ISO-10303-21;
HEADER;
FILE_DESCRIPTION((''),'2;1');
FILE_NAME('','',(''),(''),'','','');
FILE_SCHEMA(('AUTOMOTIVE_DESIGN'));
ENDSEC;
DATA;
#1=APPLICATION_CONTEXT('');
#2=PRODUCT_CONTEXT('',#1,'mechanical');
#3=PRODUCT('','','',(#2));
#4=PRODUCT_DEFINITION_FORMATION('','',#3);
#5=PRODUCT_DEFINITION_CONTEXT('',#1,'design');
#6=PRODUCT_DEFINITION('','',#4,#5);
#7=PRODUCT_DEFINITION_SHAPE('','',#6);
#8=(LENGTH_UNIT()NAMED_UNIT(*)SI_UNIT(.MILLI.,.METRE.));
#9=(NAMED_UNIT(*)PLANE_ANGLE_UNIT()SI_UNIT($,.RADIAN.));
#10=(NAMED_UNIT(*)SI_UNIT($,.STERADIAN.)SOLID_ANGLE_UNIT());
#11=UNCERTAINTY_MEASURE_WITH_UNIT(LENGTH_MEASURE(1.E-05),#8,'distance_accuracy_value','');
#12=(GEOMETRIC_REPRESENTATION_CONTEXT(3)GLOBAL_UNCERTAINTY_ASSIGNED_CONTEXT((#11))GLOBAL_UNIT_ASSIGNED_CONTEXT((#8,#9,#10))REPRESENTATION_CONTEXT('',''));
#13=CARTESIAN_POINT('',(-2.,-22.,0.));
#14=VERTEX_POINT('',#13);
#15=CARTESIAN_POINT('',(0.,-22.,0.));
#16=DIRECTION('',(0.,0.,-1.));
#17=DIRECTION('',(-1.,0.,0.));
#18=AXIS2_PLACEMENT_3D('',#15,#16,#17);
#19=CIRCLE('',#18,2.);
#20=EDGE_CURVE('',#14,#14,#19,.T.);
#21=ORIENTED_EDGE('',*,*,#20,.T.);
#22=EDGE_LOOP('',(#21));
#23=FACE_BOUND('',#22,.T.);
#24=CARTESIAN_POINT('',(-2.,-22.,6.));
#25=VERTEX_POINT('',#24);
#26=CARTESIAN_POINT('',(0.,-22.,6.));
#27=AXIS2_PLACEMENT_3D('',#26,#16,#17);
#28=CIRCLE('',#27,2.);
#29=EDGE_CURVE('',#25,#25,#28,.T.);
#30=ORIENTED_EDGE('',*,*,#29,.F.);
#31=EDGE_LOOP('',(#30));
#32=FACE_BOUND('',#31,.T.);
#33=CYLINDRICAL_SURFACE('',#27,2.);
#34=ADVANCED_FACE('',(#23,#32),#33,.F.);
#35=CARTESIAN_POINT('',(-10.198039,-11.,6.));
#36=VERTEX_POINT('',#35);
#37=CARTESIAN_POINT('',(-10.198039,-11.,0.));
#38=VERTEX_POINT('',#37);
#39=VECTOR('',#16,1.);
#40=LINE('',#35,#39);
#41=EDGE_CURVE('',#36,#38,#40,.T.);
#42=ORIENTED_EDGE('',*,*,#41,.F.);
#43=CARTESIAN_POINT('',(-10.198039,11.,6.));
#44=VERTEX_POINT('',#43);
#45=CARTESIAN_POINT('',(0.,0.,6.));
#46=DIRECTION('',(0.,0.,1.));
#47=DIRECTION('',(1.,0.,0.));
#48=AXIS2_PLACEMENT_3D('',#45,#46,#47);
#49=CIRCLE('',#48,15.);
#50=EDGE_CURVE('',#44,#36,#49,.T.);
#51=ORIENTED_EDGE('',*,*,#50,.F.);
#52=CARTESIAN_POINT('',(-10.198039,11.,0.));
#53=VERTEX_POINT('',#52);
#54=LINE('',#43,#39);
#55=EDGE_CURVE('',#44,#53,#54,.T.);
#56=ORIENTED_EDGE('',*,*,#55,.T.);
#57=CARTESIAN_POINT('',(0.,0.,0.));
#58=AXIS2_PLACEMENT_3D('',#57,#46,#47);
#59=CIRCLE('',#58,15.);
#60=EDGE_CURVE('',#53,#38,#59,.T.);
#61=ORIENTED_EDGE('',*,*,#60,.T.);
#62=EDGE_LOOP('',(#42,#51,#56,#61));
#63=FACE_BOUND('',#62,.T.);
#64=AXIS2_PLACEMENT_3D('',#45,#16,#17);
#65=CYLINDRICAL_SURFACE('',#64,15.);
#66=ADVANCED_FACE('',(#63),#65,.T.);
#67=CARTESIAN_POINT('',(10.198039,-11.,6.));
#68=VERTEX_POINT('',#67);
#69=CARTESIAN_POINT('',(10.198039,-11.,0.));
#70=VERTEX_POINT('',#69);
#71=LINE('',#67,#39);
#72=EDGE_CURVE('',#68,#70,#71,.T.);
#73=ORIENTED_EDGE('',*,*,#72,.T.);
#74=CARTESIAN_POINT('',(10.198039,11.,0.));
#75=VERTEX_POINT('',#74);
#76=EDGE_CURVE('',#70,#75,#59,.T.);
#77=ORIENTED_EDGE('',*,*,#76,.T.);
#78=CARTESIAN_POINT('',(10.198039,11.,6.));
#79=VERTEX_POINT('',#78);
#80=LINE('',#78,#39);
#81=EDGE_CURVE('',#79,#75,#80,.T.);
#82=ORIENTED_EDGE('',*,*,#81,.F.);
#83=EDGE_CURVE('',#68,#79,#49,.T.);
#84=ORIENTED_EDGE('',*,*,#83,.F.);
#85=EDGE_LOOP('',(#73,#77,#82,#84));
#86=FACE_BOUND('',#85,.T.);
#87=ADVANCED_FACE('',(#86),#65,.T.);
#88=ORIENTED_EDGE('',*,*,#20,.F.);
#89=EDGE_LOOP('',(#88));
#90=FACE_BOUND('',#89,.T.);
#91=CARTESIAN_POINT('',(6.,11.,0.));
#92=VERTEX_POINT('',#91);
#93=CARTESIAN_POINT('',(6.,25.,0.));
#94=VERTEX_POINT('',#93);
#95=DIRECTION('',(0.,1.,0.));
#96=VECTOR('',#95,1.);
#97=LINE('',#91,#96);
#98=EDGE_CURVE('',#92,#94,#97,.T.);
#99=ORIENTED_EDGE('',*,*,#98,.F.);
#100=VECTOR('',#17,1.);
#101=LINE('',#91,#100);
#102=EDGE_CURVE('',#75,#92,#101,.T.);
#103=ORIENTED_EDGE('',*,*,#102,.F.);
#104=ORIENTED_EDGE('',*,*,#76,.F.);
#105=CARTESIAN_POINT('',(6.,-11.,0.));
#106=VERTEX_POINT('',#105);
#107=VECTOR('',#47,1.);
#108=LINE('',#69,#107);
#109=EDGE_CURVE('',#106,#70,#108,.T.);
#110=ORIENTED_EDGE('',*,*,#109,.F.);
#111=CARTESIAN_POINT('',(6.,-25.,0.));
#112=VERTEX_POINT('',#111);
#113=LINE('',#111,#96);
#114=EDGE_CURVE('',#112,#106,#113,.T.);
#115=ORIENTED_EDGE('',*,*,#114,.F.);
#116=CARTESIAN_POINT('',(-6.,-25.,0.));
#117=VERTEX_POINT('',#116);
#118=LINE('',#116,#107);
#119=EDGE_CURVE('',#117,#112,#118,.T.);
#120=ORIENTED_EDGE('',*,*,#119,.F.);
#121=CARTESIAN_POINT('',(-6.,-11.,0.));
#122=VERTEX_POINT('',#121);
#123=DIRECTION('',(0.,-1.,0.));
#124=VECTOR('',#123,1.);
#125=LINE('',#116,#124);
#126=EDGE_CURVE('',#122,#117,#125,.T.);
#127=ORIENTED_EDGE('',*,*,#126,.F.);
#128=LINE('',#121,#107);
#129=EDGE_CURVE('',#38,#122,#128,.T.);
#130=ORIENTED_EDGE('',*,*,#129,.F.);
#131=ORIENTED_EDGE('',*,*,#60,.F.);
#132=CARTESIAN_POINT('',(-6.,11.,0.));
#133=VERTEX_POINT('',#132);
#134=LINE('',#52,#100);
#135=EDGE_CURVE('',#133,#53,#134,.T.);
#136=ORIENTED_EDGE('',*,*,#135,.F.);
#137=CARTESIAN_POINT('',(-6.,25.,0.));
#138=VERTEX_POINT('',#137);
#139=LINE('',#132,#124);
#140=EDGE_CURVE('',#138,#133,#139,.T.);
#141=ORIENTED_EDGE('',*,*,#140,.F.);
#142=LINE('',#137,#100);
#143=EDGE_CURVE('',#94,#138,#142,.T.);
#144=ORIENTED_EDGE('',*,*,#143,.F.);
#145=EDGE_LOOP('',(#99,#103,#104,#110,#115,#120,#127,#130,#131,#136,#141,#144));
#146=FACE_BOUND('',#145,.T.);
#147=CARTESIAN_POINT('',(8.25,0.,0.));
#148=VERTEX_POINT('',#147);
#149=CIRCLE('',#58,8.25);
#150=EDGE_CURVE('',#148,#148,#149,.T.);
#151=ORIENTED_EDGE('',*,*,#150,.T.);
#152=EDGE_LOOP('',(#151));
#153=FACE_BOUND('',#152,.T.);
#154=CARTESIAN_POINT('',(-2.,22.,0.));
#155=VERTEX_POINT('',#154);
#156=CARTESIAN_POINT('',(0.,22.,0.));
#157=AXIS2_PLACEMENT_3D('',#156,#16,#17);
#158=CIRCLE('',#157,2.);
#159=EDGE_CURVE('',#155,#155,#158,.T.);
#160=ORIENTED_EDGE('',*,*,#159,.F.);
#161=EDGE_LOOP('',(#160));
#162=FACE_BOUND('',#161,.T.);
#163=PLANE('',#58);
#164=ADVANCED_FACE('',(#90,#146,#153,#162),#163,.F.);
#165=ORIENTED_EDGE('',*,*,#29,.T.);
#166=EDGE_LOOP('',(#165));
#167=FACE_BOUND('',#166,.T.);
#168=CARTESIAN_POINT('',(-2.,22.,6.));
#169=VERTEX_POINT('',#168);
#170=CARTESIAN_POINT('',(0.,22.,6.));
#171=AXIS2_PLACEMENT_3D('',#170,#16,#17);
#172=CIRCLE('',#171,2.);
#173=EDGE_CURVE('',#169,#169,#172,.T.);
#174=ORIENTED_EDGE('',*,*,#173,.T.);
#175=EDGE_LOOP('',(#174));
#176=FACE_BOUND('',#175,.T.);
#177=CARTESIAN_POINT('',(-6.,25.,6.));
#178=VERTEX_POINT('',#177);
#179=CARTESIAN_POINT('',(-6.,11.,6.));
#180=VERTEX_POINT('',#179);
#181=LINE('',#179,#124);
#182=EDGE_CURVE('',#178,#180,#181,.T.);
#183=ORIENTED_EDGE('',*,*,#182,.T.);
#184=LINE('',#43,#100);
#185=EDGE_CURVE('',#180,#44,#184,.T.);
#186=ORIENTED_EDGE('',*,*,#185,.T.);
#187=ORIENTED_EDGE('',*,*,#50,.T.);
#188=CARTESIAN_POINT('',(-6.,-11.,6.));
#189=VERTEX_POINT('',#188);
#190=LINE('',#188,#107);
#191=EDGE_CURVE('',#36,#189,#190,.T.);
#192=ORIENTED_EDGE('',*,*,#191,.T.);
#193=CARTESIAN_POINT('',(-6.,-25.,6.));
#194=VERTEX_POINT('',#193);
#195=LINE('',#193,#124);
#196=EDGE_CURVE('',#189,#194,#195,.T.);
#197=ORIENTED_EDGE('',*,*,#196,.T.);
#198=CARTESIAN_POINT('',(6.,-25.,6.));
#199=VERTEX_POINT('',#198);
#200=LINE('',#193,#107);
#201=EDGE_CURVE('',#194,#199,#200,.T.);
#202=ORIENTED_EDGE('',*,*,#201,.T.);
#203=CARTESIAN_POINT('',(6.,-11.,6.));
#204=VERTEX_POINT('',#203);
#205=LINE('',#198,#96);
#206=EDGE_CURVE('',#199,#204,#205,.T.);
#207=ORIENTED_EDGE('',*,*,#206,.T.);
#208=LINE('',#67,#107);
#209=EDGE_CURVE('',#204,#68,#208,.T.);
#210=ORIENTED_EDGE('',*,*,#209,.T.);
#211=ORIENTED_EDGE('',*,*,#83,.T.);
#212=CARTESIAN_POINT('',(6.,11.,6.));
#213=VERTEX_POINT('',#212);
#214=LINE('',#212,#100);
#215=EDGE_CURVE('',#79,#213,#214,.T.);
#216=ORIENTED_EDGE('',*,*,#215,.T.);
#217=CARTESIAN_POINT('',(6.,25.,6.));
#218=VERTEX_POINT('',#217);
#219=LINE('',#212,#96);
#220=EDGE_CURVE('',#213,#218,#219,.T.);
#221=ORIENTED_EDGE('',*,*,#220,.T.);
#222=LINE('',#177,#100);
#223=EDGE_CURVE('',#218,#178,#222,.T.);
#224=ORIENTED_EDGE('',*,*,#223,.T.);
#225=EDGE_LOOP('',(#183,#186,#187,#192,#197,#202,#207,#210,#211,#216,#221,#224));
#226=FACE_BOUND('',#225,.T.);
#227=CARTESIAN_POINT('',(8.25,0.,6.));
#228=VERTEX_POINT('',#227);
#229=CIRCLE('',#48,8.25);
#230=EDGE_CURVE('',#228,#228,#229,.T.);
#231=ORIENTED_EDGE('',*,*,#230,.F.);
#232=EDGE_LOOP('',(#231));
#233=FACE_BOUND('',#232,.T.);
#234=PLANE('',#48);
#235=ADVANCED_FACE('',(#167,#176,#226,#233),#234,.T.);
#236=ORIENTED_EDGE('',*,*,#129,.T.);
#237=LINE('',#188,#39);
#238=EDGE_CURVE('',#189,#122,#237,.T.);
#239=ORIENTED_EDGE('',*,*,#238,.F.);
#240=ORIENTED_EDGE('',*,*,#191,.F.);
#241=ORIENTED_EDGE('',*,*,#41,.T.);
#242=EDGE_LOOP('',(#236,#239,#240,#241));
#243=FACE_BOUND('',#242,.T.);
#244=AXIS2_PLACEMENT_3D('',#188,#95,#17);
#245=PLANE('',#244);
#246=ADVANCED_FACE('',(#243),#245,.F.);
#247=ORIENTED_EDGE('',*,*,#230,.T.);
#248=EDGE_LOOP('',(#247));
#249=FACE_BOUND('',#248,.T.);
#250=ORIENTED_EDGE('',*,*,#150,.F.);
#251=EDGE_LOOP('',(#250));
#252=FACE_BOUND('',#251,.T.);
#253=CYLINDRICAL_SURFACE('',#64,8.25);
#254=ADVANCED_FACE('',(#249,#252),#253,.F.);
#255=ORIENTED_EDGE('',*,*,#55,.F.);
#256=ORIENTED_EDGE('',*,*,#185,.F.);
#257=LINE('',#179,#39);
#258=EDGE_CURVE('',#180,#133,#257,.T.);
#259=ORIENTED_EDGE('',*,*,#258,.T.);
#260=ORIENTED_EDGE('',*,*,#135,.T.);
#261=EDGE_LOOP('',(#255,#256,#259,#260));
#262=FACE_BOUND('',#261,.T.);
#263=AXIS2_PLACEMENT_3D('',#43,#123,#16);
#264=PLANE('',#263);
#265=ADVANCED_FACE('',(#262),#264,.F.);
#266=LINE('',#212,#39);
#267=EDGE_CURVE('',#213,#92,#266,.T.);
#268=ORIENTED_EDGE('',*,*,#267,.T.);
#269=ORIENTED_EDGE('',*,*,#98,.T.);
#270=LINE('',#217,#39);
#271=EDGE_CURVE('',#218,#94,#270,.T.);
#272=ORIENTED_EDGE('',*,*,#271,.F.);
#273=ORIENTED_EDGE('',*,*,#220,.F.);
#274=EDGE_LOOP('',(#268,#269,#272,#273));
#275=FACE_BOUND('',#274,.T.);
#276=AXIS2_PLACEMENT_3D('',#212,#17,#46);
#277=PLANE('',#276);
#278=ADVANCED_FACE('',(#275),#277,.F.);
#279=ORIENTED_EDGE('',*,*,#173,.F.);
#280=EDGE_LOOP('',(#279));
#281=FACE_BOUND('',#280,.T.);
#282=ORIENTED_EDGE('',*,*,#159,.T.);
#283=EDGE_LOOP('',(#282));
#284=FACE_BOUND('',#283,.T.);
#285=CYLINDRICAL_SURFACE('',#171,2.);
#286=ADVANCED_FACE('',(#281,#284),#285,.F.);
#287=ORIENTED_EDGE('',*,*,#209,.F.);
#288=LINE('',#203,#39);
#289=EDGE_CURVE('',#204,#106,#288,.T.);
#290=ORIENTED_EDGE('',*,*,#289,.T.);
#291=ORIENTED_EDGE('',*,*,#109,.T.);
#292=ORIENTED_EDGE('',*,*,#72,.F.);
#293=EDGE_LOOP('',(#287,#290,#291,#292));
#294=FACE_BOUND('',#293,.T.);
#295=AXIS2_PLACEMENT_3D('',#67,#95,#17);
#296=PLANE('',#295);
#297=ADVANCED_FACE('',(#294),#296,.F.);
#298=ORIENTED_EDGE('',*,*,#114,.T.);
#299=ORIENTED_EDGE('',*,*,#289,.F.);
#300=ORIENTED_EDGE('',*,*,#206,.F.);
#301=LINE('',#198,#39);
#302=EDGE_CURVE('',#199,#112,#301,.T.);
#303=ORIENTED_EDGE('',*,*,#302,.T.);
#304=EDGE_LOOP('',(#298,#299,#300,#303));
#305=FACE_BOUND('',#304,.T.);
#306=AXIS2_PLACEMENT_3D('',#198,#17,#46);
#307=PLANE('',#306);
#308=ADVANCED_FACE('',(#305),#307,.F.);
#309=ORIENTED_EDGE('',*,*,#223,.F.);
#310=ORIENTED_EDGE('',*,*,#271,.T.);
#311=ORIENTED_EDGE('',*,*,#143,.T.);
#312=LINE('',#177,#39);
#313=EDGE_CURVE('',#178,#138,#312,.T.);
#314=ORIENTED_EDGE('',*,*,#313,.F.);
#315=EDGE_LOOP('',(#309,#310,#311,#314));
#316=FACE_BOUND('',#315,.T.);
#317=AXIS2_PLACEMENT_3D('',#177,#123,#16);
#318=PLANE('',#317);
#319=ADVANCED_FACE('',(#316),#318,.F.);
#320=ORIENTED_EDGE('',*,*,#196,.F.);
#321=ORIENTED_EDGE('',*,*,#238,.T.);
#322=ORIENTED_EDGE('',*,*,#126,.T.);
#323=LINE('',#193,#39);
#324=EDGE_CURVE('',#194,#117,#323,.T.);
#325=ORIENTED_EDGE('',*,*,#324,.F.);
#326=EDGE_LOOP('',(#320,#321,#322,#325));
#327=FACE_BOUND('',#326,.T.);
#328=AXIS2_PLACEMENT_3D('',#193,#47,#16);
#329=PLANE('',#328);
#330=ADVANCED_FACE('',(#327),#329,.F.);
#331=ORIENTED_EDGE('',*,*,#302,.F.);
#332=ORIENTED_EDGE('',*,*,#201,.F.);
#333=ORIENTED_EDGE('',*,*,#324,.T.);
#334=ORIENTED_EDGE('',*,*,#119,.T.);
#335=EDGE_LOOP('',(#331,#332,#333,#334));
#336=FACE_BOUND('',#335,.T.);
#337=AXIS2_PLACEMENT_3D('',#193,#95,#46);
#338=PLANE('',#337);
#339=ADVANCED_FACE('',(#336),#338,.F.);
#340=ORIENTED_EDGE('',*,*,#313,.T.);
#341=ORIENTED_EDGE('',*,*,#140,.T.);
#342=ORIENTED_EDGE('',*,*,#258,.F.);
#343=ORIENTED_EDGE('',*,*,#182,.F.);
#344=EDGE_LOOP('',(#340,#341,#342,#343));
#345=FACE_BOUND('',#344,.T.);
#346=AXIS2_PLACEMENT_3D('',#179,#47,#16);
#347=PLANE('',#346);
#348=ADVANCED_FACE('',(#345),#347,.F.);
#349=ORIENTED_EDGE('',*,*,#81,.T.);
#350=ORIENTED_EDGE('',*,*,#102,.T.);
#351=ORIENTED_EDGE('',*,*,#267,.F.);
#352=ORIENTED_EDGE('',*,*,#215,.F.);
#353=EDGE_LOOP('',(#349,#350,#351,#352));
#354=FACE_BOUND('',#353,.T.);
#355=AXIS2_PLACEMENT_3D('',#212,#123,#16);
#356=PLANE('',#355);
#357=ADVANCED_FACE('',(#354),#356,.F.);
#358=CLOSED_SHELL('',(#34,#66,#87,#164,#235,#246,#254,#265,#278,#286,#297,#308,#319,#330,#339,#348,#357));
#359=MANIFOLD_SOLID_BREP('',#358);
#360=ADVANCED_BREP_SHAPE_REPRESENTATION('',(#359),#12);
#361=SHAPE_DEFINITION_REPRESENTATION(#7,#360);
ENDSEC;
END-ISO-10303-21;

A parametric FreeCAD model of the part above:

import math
import FreeCAD as App
import Part
import Sketcher

V = App.Vector
Q = App.Units.Quantity

doc = App.newDocument("Part")
params = doc.addObject("Spreadsheet::Sheet", "Params")
for row, (alias, value) in enumerate([
    ("sketch1_radius", "15 mm"),
    ("sketch1_diameter", "16.5 mm"),
    ("sketch1_width", "12 mm"),
    ("sketch1_height", "14 mm"),
    ("pad1_length", "6 mm"),
    ("sketch2_diameter", "4 mm"),
], start=1):
    params.set(f"A{row}", alias)
    params.set(f"B{row}", "=" + value)
    params.setAlias(f"B{row}", alias)

body = doc.addObject("PartDesign::Body", "Body")

# Sketch on XY plane
sketch1 = doc.addObject("Sketcher::SketchObject", "Sketch")
body.addObject(sketch1)
sketch1.AttachmentSupport = (doc.XY_Plane, [""])
sketch1.MapMode = "FlatFace"
sketch1.addGeometry([
    Part.LineSegment(V(6, -25, 0), V(6, -11, 0)),  # 0
    Part.LineSegment(V(6, -11, 0), V(10.198039, -11, 0)),  # 1
    Part.ArcOfCircle(Part.Circle(V(0, 0, 0), V(0, 0, 1), 15), math.radians(-47.166572), math.radians(47.166572)),  # 2
    Part.LineSegment(V(10.198039, 11, 0), V(6, 11, 0)),  # 3
    Part.LineSegment(V(6, 11, 0), V(6, 25, 0)),  # 4
    Part.LineSegment(V(6, 25, 0), V(-6, 25, 0)),  # 5
    Part.LineSegment(V(-6, 25, 0), V(-6, 11, 0)),  # 6
    Part.LineSegment(V(-6, 11, 0), V(-10.198039, 11, 0)),  # 7
    Part.ArcOfCircle(Part.Circle(V(0, 0, 0), V(0, 0, 1), 15), math.radians(132.833428), math.radians(227.166572)),  # 8
    Part.LineSegment(V(-10.198039, -11, 0), V(-6, -11, 0)),  # 9
    Part.LineSegment(V(-6, -11, 0), V(-6, -25, 0)),  # 10
    Part.LineSegment(V(-6, -25, 0), V(6, -25, 0)),  # 11
    Part.Circle(V(0, 0, 0), V(0, 0, 1), 8.25),  # 12
], False)
sketch1.addConstraint([
    Sketcher.Constraint("Coincident", 0, 2, 1, 1),
    Sketcher.Constraint("Coincident", 1, 2, 2, 1),
    Sketcher.Constraint("Coincident", 2, 2, 3, 1),
    Sketcher.Constraint("Coincident", 3, 2, 4, 1),
    Sketcher.Constraint("Coincident", 4, 2, 5, 1),
    Sketcher.Constraint("Coincident", 5, 2, 6, 1),
    Sketcher.Constraint("Coincident", 6, 2, 7, 1),
    Sketcher.Constraint("Coincident", 7, 2, 8, 1),
    Sketcher.Constraint("Coincident", 8, 2, 9, 1),
    Sketcher.Constraint("Coincident", 9, 2, 10, 1),
    Sketcher.Constraint("Coincident", 10, 2, 11, 1),
    Sketcher.Constraint("Coincident", 11, 2, 0, 1),
    Sketcher.Constraint("Vertical", 0),
    Sketcher.Constraint("Horizontal", 1),
    Sketcher.Constraint("Horizontal", 3),
    Sketcher.Constraint("Vertical", 4),
    Sketcher.Constraint("Horizontal", 5),
    Sketcher.Constraint("Vertical", 6),
    Sketcher.Constraint("Horizontal", 7),
    Sketcher.Constraint("Horizontal", 9),
    Sketcher.Constraint("Vertical", 10),
    Sketcher.Constraint("Horizontal", 11),
    Sketcher.Constraint("Coincident", 2, 3, -1, 1),
    Sketcher.Constraint("Coincident", 8, 3, -1, 1),
    Sketcher.Constraint("Coincident", 12, 3, -1, 1),
    Sketcher.Constraint("Equal", 2, 8),
    Sketcher.Constraint("Symmetric", 0, 2, 6, 2, -1, 1),
    Sketcher.Constraint("Symmetric", 3, 2, 9, 2, -1, 1),
    Sketcher.Constraint("Symmetric", 3, 2, 6, 2, -2),
    Sketcher.Constraint("Equal", 0, 4),
    Sketcher.Constraint("Radius", 2, Q("15 mm")),
    Sketcher.Constraint("Diameter", 12, Q("16.5 mm")),
    Sketcher.Constraint("DistanceX", 5, 2, 5, 1, Q("12 mm")),
    Sketcher.Constraint("DistanceY", 0, 1, 0, 2, Q("14 mm")),
    Sketcher.Constraint("DistanceY", 0, 2, -1, 1, Q("11 mm")),
])
sketch1.setExpression("Constraints[30]", "Params.sketch1_radius")
sketch1.setExpression("Constraints[31]", "Params.sketch1_diameter")
sketch1.setExpression("Constraints[32]", "Params.sketch1_width")
sketch1.setExpression("Constraints[33]", "Params.sketch1_height")
pad1 = doc.addObject("PartDesign::Pad", "Pad")
body.addObject(pad1)
pad1.Profile = sketch1
pad1.setExpression("Length", "Params.pad1_length")

# Sketch on XY plane
sketch2 = doc.addObject("Sketcher::SketchObject", "Sketch001")
body.addObject(sketch2)
sketch2.AttachmentSupport = (doc.XY_Plane, [""])
sketch2.MapMode = "FlatFace"
sketch2.addGeometry([
    Part.Circle(V(0, 22, 0), V(0, 0, 1), 2),
    Part.Circle(V(0, -22, 0), V(0, 0, 1), 2),
], False)
sketch2.addConstraint([
    Sketcher.Constraint("Equal", 0, 1),
    Sketcher.Constraint("Symmetric", 0, 3, 1, 3, -1, 1),
    Sketcher.Constraint("PointOnObject", 0, 3, -2),
    Sketcher.Constraint("Diameter", 0, Q("4 mm")),
    Sketcher.Constraint("DistanceY", -1, 1, 0, 3, Q("22 mm")),
])
sketch2.setExpression("Constraints[3]", "Params.sketch2_diameter")
pocket1 = doc.addObject("PartDesign::Pocket", "Pocket")
body.addObject(pocket1)
pocket1.Profile = sketch2
pocket1.Type = "ThroughAll"
pocket1.Reversed = True

doc.recompute()
